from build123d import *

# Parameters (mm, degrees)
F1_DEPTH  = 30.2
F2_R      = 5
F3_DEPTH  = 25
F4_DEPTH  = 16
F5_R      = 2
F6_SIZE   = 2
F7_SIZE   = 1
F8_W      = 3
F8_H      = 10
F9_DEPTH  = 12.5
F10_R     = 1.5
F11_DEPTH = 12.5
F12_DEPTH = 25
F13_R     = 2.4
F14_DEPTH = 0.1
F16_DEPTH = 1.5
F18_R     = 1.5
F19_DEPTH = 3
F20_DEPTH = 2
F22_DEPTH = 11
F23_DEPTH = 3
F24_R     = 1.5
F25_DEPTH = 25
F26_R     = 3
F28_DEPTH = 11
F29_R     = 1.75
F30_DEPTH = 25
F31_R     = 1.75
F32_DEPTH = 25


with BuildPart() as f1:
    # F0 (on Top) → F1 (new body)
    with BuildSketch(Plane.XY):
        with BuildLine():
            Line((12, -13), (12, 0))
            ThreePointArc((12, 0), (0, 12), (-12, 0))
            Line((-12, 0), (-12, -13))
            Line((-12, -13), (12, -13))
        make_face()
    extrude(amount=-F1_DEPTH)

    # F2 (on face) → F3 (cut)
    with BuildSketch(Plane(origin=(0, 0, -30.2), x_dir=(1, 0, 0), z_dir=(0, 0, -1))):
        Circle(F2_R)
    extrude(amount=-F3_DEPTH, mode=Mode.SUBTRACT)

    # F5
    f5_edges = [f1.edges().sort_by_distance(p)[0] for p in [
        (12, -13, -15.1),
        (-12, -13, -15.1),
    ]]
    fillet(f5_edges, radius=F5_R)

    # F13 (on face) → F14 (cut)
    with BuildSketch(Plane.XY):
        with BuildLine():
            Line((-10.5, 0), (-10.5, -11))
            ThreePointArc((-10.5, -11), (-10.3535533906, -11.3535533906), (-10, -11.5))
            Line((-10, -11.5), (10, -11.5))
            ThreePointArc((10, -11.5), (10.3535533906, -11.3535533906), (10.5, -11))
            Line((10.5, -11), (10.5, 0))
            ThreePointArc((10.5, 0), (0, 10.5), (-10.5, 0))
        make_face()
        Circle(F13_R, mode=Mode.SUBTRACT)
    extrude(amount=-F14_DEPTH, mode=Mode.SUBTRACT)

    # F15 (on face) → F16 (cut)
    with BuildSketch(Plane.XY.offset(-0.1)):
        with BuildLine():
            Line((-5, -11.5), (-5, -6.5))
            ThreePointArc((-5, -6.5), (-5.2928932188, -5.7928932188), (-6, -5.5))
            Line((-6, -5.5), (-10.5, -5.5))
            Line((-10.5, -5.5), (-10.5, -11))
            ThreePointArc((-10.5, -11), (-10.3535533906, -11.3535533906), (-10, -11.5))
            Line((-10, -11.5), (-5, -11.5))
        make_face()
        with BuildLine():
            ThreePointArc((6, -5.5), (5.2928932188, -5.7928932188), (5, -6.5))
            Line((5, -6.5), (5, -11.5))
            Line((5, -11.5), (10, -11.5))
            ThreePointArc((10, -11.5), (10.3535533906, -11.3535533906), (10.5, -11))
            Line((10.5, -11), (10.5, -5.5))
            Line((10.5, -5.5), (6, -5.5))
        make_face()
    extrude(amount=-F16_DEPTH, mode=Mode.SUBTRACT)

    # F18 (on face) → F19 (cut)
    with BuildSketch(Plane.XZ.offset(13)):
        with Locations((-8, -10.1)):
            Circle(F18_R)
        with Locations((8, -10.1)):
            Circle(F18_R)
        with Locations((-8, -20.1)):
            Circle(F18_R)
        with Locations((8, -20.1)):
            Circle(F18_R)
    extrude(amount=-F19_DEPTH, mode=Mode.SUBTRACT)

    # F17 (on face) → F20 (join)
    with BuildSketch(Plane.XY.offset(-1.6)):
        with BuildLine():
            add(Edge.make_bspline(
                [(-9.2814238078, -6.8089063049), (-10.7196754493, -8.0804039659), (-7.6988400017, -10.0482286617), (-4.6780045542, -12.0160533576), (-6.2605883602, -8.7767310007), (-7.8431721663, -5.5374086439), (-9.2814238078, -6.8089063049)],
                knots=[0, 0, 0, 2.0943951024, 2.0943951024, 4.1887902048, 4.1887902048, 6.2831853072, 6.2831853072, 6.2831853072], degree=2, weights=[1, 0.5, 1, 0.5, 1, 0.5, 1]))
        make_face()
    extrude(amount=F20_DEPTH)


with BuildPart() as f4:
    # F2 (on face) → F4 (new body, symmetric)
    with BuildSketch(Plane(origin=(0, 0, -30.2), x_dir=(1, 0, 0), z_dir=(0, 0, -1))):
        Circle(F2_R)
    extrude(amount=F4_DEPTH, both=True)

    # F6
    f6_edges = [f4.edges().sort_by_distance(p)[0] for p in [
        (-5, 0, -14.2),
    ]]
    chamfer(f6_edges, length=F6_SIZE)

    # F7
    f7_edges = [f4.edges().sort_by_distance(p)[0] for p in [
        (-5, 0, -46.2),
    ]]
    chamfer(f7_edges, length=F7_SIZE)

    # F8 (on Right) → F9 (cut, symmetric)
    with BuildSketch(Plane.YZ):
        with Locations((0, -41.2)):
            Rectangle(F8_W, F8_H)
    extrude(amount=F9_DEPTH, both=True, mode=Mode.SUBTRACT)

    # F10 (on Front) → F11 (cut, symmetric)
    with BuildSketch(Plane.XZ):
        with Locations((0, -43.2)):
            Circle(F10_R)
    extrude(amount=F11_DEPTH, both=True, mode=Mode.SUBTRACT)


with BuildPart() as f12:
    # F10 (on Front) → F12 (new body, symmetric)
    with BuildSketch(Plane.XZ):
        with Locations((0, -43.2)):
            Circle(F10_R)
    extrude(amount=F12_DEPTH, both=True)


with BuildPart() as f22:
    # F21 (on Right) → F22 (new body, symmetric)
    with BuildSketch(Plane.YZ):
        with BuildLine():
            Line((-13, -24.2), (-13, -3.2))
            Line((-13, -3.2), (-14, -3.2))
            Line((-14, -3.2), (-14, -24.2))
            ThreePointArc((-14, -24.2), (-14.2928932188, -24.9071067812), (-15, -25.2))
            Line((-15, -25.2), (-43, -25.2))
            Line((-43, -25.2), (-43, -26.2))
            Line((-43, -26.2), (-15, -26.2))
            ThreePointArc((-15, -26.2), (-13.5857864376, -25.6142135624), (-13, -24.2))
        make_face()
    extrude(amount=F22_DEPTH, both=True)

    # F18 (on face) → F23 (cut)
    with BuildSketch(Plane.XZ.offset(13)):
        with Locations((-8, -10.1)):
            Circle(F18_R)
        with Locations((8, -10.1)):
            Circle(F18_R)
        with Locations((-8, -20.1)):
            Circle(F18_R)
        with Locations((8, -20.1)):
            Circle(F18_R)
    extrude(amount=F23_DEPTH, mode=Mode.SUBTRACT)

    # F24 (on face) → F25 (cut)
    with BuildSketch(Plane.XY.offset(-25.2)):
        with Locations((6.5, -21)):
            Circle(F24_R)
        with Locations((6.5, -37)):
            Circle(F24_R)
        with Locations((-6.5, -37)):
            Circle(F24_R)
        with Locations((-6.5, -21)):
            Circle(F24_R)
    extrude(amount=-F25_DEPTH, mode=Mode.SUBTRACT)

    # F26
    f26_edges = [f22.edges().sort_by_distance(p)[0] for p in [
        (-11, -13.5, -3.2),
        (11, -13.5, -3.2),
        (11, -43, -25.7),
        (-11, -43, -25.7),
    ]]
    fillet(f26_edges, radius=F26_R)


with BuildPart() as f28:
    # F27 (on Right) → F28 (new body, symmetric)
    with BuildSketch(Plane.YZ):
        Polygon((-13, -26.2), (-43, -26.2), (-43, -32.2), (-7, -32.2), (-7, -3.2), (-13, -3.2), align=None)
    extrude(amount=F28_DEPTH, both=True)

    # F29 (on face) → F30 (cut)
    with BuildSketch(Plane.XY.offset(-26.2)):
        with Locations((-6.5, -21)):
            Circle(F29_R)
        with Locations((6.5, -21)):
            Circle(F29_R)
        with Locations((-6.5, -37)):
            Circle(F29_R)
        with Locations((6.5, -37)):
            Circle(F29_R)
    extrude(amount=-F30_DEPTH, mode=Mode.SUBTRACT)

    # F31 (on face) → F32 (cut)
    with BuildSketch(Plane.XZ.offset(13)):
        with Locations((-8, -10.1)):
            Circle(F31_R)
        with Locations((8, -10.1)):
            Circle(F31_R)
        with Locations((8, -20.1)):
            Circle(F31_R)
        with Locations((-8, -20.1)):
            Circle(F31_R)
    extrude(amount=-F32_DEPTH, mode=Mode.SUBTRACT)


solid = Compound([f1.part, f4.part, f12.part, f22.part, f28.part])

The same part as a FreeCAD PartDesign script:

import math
import FreeCAD as App
import Part
import Sketcher
from FreeCAD import Vector


def edges_at(feature, points):
    """Names of the edges that pass closest to the given points."""
    edges = feature.Shape.Edges
    near = lambda p: min(range(len(edges)), key=lambda i: edges[i].distToShape(Part.Vertex(*p))[0])
    return sorted({f"Edge{near(p) + 1}" for p in points})


def add_polygon(sketch, points):
    """Adds a closed chain of lines whose ends are joined by coincident constraints."""
    first, n = sketch.GeometryCount, len(points)
    for a, b in zip(points, points[1:] + points[:1]):
        sketch.addGeometry(Part.LineSegment(App.Vector(*a, 0), App.Vector(*b, 0)), False)
    for i in range(n):
        sketch.addConstraint(Sketcher.Constraint("Coincident", first + i, 2, first + (i + 1) % n, 1))

doc = App.newDocument("Part")
params = doc.addObject("Spreadsheet::Sheet", "Params")
for row, (alias, value) in enumerate([
    ("sketch1_radius", "12 mm"),
    ("sketch1_height", "13 mm"),
    ("pad1_length", "30.2 mm"),
    ("sketch2_diameter", "10 mm"),
    ("pocket1_length", "25 mm"),
    ("fillet_radius", "2 mm"),
    ("sketch3_diameter", "4.8 mm"),
    ("sketch3_radius", "0.5 mm"),
    ("sketch3_radius2", "10.5 mm"),
    ("sketch3_height", "11 mm"),
    ("pocket2_length", "0.1 mm"),
    ("sketch4_radius", "1 mm"),
    ("sketch4_radius2", "0.5 mm"),
    ("sketch4_width", "5 mm"),
    ("pocket3_length", "1.5 mm"),
    ("sketch5_diameter", "3 mm"),
    ("pocket4_length", "3 mm"),
    ("pad2_length", "2 mm"),
    ("sketch7_diameter", "10 mm"),
    ("pad3_length", "32 mm"),
    ("chamfer_size", "2 mm"),
    ("chamfer2_size", "1 mm"),
    ("sketch8_width", "3 mm"),
    ("sketch8_height", "10 mm"),
    ("pocket5_length", "25 mm"),
    ("sketch9_diameter", "3 mm"),
    ("pocket6_length", "25 mm"),
    ("sketch10_diameter", "3 mm"),
    ("pad4_length", "50 mm"),
    ("sketch11_radius", "1 mm"),
    ("sketch11_radius2", "2 mm"),
    ("sketch11_width", "28 mm"),
    ("sketch11_height", "21 mm"),
    ("pad5_length", "22 mm"),
    ("sketch12_diameter", "3 mm"),
    ("pocket7_length", "3 mm"),
    ("sketch13_diameter", "3 mm"),
    ("pocket8_length", "25 mm"),
    ("fillet2_radius", "3 mm"),
    ("sketch14_width", "30 mm"),
    ("sketch14_width2", "36 mm"),
    ("sketch14_height", "29 mm"),
    ("pad6_length", "22 mm"),
    ("sketch15_diameter", "3.5 mm"),
    ("pocket9_length", "25 mm"),
    ("sketch16_diameter", "3.5 mm"),
    ("pocket10_length", "25 mm"),
], start=1):
    params.set(f"A{row}", alias)
    params.set(f"B{row}", "=" + value)
    params.setAlias(f"B{row}", alias)

body = doc.addObject("PartDesign::Body", "Body")

# Sketch on XY plane
sketch1 = doc.addObject("Sketcher::SketchObject", "Sketch")
body.addObject(sketch1)
sketch1.AttachmentSupport = (doc.XY_Plane, [""])
sketch1.MapMode = "FlatFace"
sketch1.addGeometry(Part.LineSegment(Vector(12, -13, 0), Vector(12, 0, 0)), False)
sketch1.addGeometry(Part.ArcOfCircle(Part.Circle(Vector(0, 0, 0), Vector(0, 0, 1), 12), math.radians(0), math.radians(180)), False)
sketch1.addGeometry(Part.LineSegment(Vector(-12, 0, 0), Vector(-12, -13, 0)), False)
sketch1.addGeometry(Part.LineSegment(Vector(-12, -13, 0), Vector(12, -13, 0)), False)
sketch1.addConstraint(Sketcher.Constraint("Tangent", 0, 2, 1, 1))
sketch1.addConstraint(Sketcher.Constraint("Tangent", 1, 2, 2, 1))
sketch1.addConstraint(Sketcher.Constraint("Coincident", 2, 2, 3, 1))
sketch1.addConstraint(Sketcher.Constraint("Coincident", 3, 2, 0, 1))
sketch1.addConstraint(Sketcher.Constraint("Vertical", 0))
sketch1.addConstraint(Sketcher.Constraint("Vertical", 2))
sketch1.addConstraint(Sketcher.Constraint("Horizontal", 3))
sketch1.addConstraint(Sketcher.Constraint("Coincident", 1, 3, -1, 1))
sketch1.addConstraint(Sketcher.Constraint("Radius", 1, 12.0))
sketch1.addConstraint(Sketcher.Constraint("DistanceY", 0, 1, 0, 2, 13.0))
sketch1.setExpression("Constraints[8]", "Params.sketch1_radius")
sketch1.setExpression("Constraints[9]", "Params.sketch1_height")
pad1 = doc.addObject("PartDesign::Pad", "Pad")
body.addObject(pad1)
pad1.Profile = sketch1
pad1.setExpression("Length", "Params.pad1_length")
pad1.Reversed = True

# Sketch on XY plane
sketch2 = doc.addObject("Sketcher::SketchObject", "Sketch001")
body.addObject(sketch2)
sketch2.AttachmentSupport = (doc.XY_Plane, [""])
sketch2.MapMode = "FlatFace"
sketch2.AttachmentOffset = App.Placement(Vector(0, 0, -30.2), App.Rotation())
sketch2.addGeometry(Part.Circle(Vector(0, 0, 0), Vector(0, 0, 1), 5), False)
sketch2.addConstraint(Sketcher.Constraint("Coincident", 0, 3, -1, 1))
sketch2.addConstraint(Sketcher.Constraint("Diameter", 0, 10.0))
sketch2.setExpression("Constraints[1]", "Params.sketch2_diameter")
pocket1 = doc.addObject("PartDesign::Pocket", "Pocket")
body.addObject(pocket1)
pocket1.Profile = sketch2
pocket1.setExpression("Length", "Params.pocket1_length")
pocket1.Reversed = True
doc.recompute()

fillet = doc.addObject("PartDesign::Fillet", "Fillet")
body.addObject(fillet)
fillet.Base = (pocket1, edges_at(pocket1, [(12, -13, -15.1), (-12, -13, -15.1)]))
fillet.setExpression("Radius", "Params.fillet_radius")

# Sketch on XY plane
sketch3 = doc.addObject("Sketcher::SketchObject", "Sketch002")
body.addObject(sketch3)
sketch3.AttachmentSupport = (doc.XY_Plane, [""])
sketch3.MapMode = "FlatFace"
sketch3.addGeometry(Part.LineSegment(Vector(-10.5, 0, 0), Vector(-10.5, -11, 0)), False)
sketch3.addGeometry(Part.ArcOfCircle(Part.Circle(Vector(-10, -11, 0), Vector(0, 0, 1), 0.5), math.radians(180), math.radians(270)), False)
sketch3.addGeometry(Part.LineSegment(Vector(-10, -11.5, 0), Vector(10, -11.5, 0)), False)
sketch3.addGeometry(Part.ArcOfCircle(Part.Circle(Vector(10, -11, 0), Vector(0, 0, 1), 0.5), math.radians(-90), math.radians(0)), False)
sketch3.addGeometry(Part.LineSegment(Vector(10.5, -11, 0), Vector(10.5, 0, 0)), False)
sketch3.addGeometry(Part.ArcOfCircle(Part.Circle(Vector(0, 0, 0), Vector(0, 0, 1), 10.5), math.radians(0), math.radians(180)), False)
sketch3.addGeometry(Part.Circle(Vector(0, 0, 0), Vector(0, 0, 1), 2.4), False)
sketch3.addConstraint(Sketcher.Constraint("Tangent", 0, 2, 1, 1))
sketch3.addConstraint(Sketcher.Constraint("Tangent", 1, 2, 2, 1))
sketch3.addConstraint(Sketcher.Constraint("Tangent", 2, 2, 3, 1))
sketch3.addConstraint(Sketcher.Constraint("Tangent", 3, 2, 4, 1))
sketch3.addConstraint(Sketcher.Constraint("Tangent", 4, 2, 5, 1))
sketch3.addConstraint(Sketcher.Constraint("Tangent", 5, 2, 0, 1))
sketch3.addConstraint(Sketcher.Constraint("Vertical", 0))
sketch3.addConstraint(Sketcher.Constraint("Horizontal", 2))
sketch3.addConstraint(Sketcher.Constraint("Vertical", 4))
sketch3.addConstraint(Sketcher.Constraint("Coincident", 5, 3, -1, 1))
sketch3.addConstraint(Sketcher.Constraint("Coincident", 6, 3, -1, 1))
sketch3.addConstraint(Sketcher.Constraint("Equal", 1, 3))
sketch3.addConstraint(Sketcher.Constraint("Diameter", 6, 4.8))
sketch3.addConstraint(Sketcher.Constraint("Radius", 1, 0.5))
sketch3.addConstraint(Sketcher.Constraint("Radius", 5, 10.5))
sketch3.addConstraint(Sketcher.Constraint("DistanceY", 0, 2, 0, 1, 11.0))
sketch3.setExpression("Constraints[12]", "Params.sketch3_diameter")
sketch3.setExpression("Constraints[13]", "Params.sketch3_radius")
sketch3.setExpression("Constraints[14]", "Params.sketch3_radius2")
sketch3.setExpression("Constraints[15]", "Params.sketch3_height")
pocket2 = doc.addObject("PartDesign::Pocket", "Pocket001")
body.addObject(pocket2)
pocket2.Profile = sketch3
pocket2.setExpression("Length", "Params.pocket2_length")

# Sketch on XY plane
sketch4 = doc.addObject("Sketcher::SketchObject", "Sketch003")
body.addObject(sketch4)
sketch4.AttachmentSupport = (doc.XY_Plane, [""])
sketch4.MapMode = "FlatFace"
sketch4.AttachmentOffset = App.Placement(Vector(0, 0, -0.1), App.Rotation())
sketch4.addGeometry(Part.LineSegment(Vector(-5, -11.5, 0), Vector(-5, -6.5, 0)), False)
sketch4.addGeometry(Part.ArcOfCircle(Part.Circle(Vector(-6, -6.5, 0), Vector(0, 0, 1), 1), math.radians(0), math.radians(90)), False)
sketch4.addGeometry(Part.LineSegment(Vector(-6, -5.5, 0), Vector(-10.5, -5.5, 0)), False)
sketch4.addGeometry(Part.LineSegment(Vector(-10.5, -5.5, 0), Vector(-10.5, -11, 0)), False)
sketch4.addGeometry(Part.ArcOfCircle(Part.Circle(Vector(-10, -11, 0), Vector(0, 0, 1), 0.5), math.radians(180), math.radians(270)), False)
sketch4.addGeometry(Part.LineSegment(Vector(-10, -11.5, 0), Vector(-5, -11.5, 0)), False)
sketch4.addGeometry(Part.ArcOfCircle(Part.Circle(Vector(6, -6.5, 0), Vector(0, 0, 1), 1), math.radians(90), math.radians(180)), False)
sketch4.addGeometry(Part.LineSegment(Vector(5, -6.5, 0), Vector(5, -11.5, 0)), False)
sketch4.addGeometry(Part.LineSegment(Vector(5, -11.5, 0), Vector(10, -11.5, 0)), False)
sketch4.addGeometry(Part.ArcOfCircle(Part.Circle(Vector(10, -11, 0), Vector(0, 0, 1), 0.5), math.radians(-90), math.radians(0)), False)
sketch4.addGeometry(Part.LineSegment(Vector(10.5, -11, 0), Vector(10.5, -5.5, 0)), False)
sketch4.addGeometry(Part.LineSegment(Vector(10.5, -5.5, 0), Vector(6, -5.5, 0)), False)
sketch4.addConstraint(Sketcher.Constraint("Tangent", 0, 2, 1, 1))
sketch4.addConstraint(Sketcher.Constraint("Tangent", 1, 2, 2, 1))
sketch4.addConstraint(Sketcher.Constraint("Coincident", 2, 2, 3, 1))
sketch4.addConstraint(Sketcher.Constraint("Tangent", 3, 2, 4, 1))
sketch4.addConstraint(Sketcher.Constraint("Tangent", 4, 2, 5, 1))
sketch4.addConstraint(Sketcher.Constraint("Coincident", 5, 2, 0, 1))
sketch4.addConstraint(Sketcher.Constraint("Tangent", 6, 2, 7, 1))
sketch4.addConstraint(Sketcher.Constraint("Coincident", 7, 2, 8, 1))
sketch4.addConstraint(Sketcher.Constraint("Tangent", 8, 2, 9, 1))
sketch4.addConstraint(Sketcher.Constraint("Tangent", 9, 2, 10, 1))
sketch4.addConstraint(Sketcher.Constraint("Coincident", 10, 2, 11, 1))
sketch4.addConstraint(Sketcher.Constraint("Tangent", 11, 2, 6, 1))
sketch4.addConstraint(Sketcher.Constraint("Vertical", 0))
sketch4.addConstraint(Sketcher.Constraint("Horizontal", 2))
sketch4.addConstraint(Sketcher.Constraint("Vertical", 3))
sketch4.addConstraint(Sketcher.Constraint("Horizontal", 5))
sketch4.addConstraint(Sketcher.Constraint("Vertical", 7))
sketch4.addConstraint(Sketcher.Constraint("Horizontal", 8))
sketch4.addConstraint(Sketcher.Constraint("Vertical", 10))
sketch4.addConstraint(Sketcher.Constraint("Horizontal", 11))
sketch4.addConstraint(Sketcher.Constraint("Equal", 1, 6))
sketch4.addConstraint(Sketcher.Constraint("Equal", 4, 9))
sketch4.addConstraint(Sketcher.Constraint("Symmetric", 1, 3, 6, 3, -2))
sketch4.addConstraint(Sketcher.Constraint("Symmetric", 4, 3, 9, 3, -2))
sketch4.addConstraint(Sketcher.Constraint("Equal", 8, 0))
sketch4.addConstraint(Sketcher.Constraint("Radius", 1, 1.0))
sketch4.addConstraint(Sketcher.Constraint("Radius", 4, 0.5))
sketch4.addConstraint(Sketcher.Constraint("DistanceX", 5, 1, 5, 2, 5.0))
sketch4.addConstraint(Sketcher.Constraint("DistanceX", 1, 3, -1, 1, 6.0))
sketch4.addConstraint(Sketcher.Constraint("DistanceY", 4, 3, -1, 1, 11.0))
sketch4.setExpression("Constraints[25]", "Params.sketch4_radius")
sketch4.setExpression("Constraints[26]", "Params.sketch4_radius2")
sketch4.setExpression("Constraints[27]", "Params.sketch4_width")
pocket3 = doc.addObject("PartDesign::Pocket", "Pocket002")
body.addObject(pocket3)
pocket3.Profile = sketch4
pocket3.setExpression("Length", "Params.pocket3_length")

# Sketch on XZ plane
sketch5 = doc.addObject("Sketcher::SketchObject", "Sketch004")
body.addObject(sketch5)
sketch5.AttachmentSupport = (doc.XZ_Plane, [""])
sketch5.MapMode = "FlatFace"
sketch5.AttachmentOffset = App.Placement(Vector(0, 0, 13), App.Rotation())
sketch5.addGeometry(Part.Circle(Vector(-8, -10.1, 0), Vector(0, 0, 1), 1.5), False)
sketch5.addGeometry(Part.Circle(Vector(8, -10.1, 0), Vector(0, 0, 1), 1.5), False)
sketch5.addGeometry(Part.Circle(Vector(-8, -20.1, 0), Vector(0, 0, 1), 1.5), False)
sketch5.addGeometry(Part.Circle(Vector(8, -20.1, 0), Vector(0, 0, 1), 1.5), False)
sketch5.addConstraint(Sketcher.Constraint("Equal", 0, 1))
sketch5.addConstraint(Sketcher.Constraint("Equal", 1, 2))
sketch5.addConstraint(Sketcher.Constraint("Equal", 2, 3))
sketch5.addConstraint(Sketcher.Constraint("Symmetric", 0, 3, 1, 3, -2))
sketch5.addConstraint(Sketcher.Constraint("Symmetric", 2, 3, 3, 3, -2))
sketch5.addConstraint(Sketcher.Constraint("Vertical", 0, 3, 2, 3))
sketch5.addConstraint(Sketcher.Constraint("Diameter", 0, 3.0))
sketch5.addConstraint(Sketcher.Constraint("DistanceX", 0, 3, -1, 1, 8.0))
sketch5.addConstraint(Sketcher.Constraint("DistanceY", 2, 3, 0, 3, 10.0))
sketch5.addConstraint(Sketcher.Constraint("DistanceY", 0, 3, -1, 1, 10.1))
sketch5.setExpression("Constraints[6]", "Params.sketch5_diameter")
pocket4 = doc.addObject("PartDesign::Pocket", "Pocket003")
body.addObject(pocket4)
pocket4.Profile = sketch5
pocket4.setExpression("Length", "Params.pocket4_length")

# Sketch on XY plane
sketch6 = doc.addObject("Sketcher::SketchObject", "Sketch005")
body.addObject(sketch6)
sketch6.AttachmentSupport = (doc.XY_Plane, [""])
sketch6.MapMode = "FlatFace"
sketch6.AttachmentOffset = App.Placement(Vector(0, 0, -1.6), App.Rotation())
sketch6.addGeometry(Part.BSplineCurve([Vector(-9.281424, -6.808906, 0), Vector(-10.719675, -8.080404, 0), Vector(-7.69884, -10.048229, 0), Vector(-4.678005, -12.016053, 0), Vector(-6.260588, -8.776731, 0), Vector(-7.843172, -5.537409, 0), Vector(-9.281424, -6.808906, 0)], [3, 2, 2, 3], [0, 2.094395102, 4.188790205, 6.283185307], False, 2, [1, 0.5, 1, 0.5, 1, 0.5, 1], False), False)
sketch6.addConstraint(Sketcher.Constraint("Block", 0))
pad2 = doc.addObject("PartDesign::Pad", "Pad001")
body.addObject(pad2)
pad2.Profile = sketch6
pad2.setExpression("Length", "Params.pad2_length")
body2 = doc.addObject("PartDesign::Body", "Body001")

# Sketch on XY plane
sketch7 = doc.addObject("Sketcher::SketchObject", "Sketch006")
body2.addObject(sketch7)
sketch7.AttachmentSupport = (doc.getObject("XY_Plane001"), [""])
sketch7.MapMode = "FlatFace"
sketch7.AttachmentOffset = App.Placement(Vector(0, 0, -30.2), App.Rotation())
sketch7.addGeometry(Part.Circle(Vector(0, 0, 0), Vector(0, 0, 1), 5), False)
sketch7.addConstraint(Sketcher.Constraint("Coincident", 0, 3, -1, 1))
sketch7.addConstraint(Sketcher.Constraint("Diameter", 0, 10.0))
sketch7.setExpression("Constraints[1]", "Params.sketch7_diameter")
pad3 = doc.addObject("PartDesign::Pad", "Pad002")
body2.addObject(pad3)
pad3.Profile = sketch7
pad3.setExpression("Length", "Params.pad3_length")
pad3.Midplane = True
doc.recompute()

chamfer = doc.addObject("PartDesign::Chamfer", "Chamfer")
body2.addObject(chamfer)
chamfer.Base = (pad3, edges_at(pad3, [(-5, 0, -14.2)]))
chamfer.setExpression("Size", "Params.chamfer_size")
doc.recompute()

chamfer2 = doc.addObject("PartDesign::Chamfer", "Chamfer001")
body2.addObject(chamfer2)
chamfer2.Base = (chamfer, edges_at(chamfer, [(-5, 0, -46.2)]))
chamfer2.setExpression("Size", "Params.chamfer2_size")

# Sketch on YZ plane
sketch8 = doc.addObject("Sketcher::SketchObject", "Sketch007")
body2.addObject(sketch8)
sketch8.AttachmentSupport = (doc.getObject("YZ_Plane001"), [""])
sketch8.MapMode = "FlatFace"
add_polygon(sketch8, [(-1.5, -36.2), (-1.5, -46.2), (1.5, -46.2), (1.5, -36.2)])  # lines 0-3
sketch8.addConstraint(Sketcher.Constraint("Vertical", 0))
sketch8.addConstraint(Sketcher.Constraint("Horizontal", 1))
sketch8.addConstraint(Sketcher.Constraint("Vertical", 2))
sketch8.addConstraint(Sketcher.Constraint("Horizontal", 3))
sketch8.addConstraint(Sketcher.Constraint("DistanceX", 1, 1, 1, 2, 3.0))
sketch8.addConstraint(Sketcher.Constraint("DistanceY", 0, 2, 0, 1, 10.0))
sketch8.addConstraint(Sketcher.Constraint("DistanceX", 0, 2, -1, 1, 1.5))
sketch8.addConstraint(Sketcher.Constraint("DistanceY", 0, 2, -1, 1, 46.2))
sketch8.setExpression("Constraints[8]", "Params.sketch8_width")
sketch8.setExpression("Constraints[9]", "Params.sketch8_height")
pocket5 = doc.addObject("PartDesign::Pocket", "Pocket004")
body2.addObject(pocket5)
pocket5.Profile = sketch8
pocket5.setExpression("Length", "Params.pocket5_length")
pocket5.Midplane = True

# Sketch on XZ plane
sketch9 = doc.addObject("Sketcher::SketchObject", "Sketch008")
body2.addObject(sketch9)
sketch9.AttachmentSupport = (doc.getObject("XZ_Plane001"), [""])
sketch9.MapMode = "FlatFace"
sketch9.addGeometry(Part.Circle(Vector(0, -43.2, 0), Vector(0, 0, 1), 1.5), False)
sketch9.addConstraint(Sketcher.Constraint("PointOnObject", 0, 3, -2))
sketch9.addConstraint(Sketcher.Constraint("Diameter", 0, 3.0))
sketch9.addConstraint(Sketcher.Constraint("DistanceY", 0, 3, -1, 1, 43.2))
sketch9.setExpression("Constraints[1]", "Params.sketch9_diameter")
pocket6 = doc.addObject("PartDesign::Pocket", "Pocket005")
body2.addObject(pocket6)
pocket6.Profile = sketch9
pocket6.setExpression("Length", "Params.pocket6_length")
pocket6.Midplane = True
body3 = doc.addObject("PartDesign::Body", "Body002")

# Sketch on XZ plane
sketch10 = doc.addObject("Sketcher::SketchObject", "Sketch009")
body3.addObject(sketch10)
sketch10.AttachmentSupport = (doc.getObject("XZ_Plane002"), [""])
sketch10.MapMode = "FlatFace"
sketch10.addGeometry(Part.Circle(Vector(0, -43.2, 0), Vector(0, 0, 1), 1.5), False)
sketch10.addConstraint(Sketcher.Constraint("PointOnObject", 0, 3, -2))
sketch10.addConstraint(Sketcher.Constraint("Diameter", 0, 3.0))
sketch10.addConstraint(Sketcher.Constraint("DistanceY", 0, 3, -1, 1, 43.2))
sketch10.setExpression("Constraints[1]", "Params.sketch10_diameter")
pad4 = doc.addObject("PartDesign::Pad", "Pad003")
body3.addObject(pad4)
pad4.Profile = sketch10
pad4.setExpression("Length", "Params.pad4_length")
pad4.Midplane = True
body4 = doc.addObject("PartDesign::Body", "Body003")

# Sketch on YZ plane
sketch11 = doc.addObject("Sketcher::SketchObject", "Sketch010")
body4.addObject(sketch11)
sketch11.AttachmentSupport = (doc.getObject("YZ_Plane003"), [""])
sketch11.MapMode = "FlatFace"
sketch11.addGeometry(Part.LineSegment(Vector(-13, -24.2, 0), Vector(-13, -3.2, 0)), False)
sketch11.addGeometry(Part.LineSegment(Vector(-13, -3.2, 0), Vector(-14, -3.2, 0)), False)
sketch11.addGeometry(Part.LineSegment(Vector(-14, -3.2, 0), Vector(-14, -24.2, 0)), False)
sketch11.addGeometry(Part.ArcOfCircle(Part.Circle(Vector(-15, -24.2, 0), Vector(0, 0, 1), 1), math.radians(-90), math.radians(0)), False)
sketch11.addGeometry(Part.LineSegment(Vector(-15, -25.2, 0), Vector(-43, -25.2, 0)), False)
sketch11.addGeometry(Part.LineSegment(Vector(-43, -25.2, 0), Vector(-43, -26.2, 0)), False)
sketch11.addGeometry(Part.LineSegment(Vector(-43, -26.2, 0), Vector(-15, -26.2, 0)), False)
sketch11.addGeometry(Part.ArcOfCircle(Part.Circle(Vector(-15, -24.2, 0), Vector(0, 0, 1), 2), math.radians(-90), math.radians(0)), False)
sketch11.addConstraint(Sketcher.Constraint("Coincident", 0, 2, 1, 1))
sketch11.addConstraint(Sketcher.Constraint("Coincident", 1, 2, 2, 1))
sketch11.addConstraint(Sketcher.Constraint("Tangent", 2, 2, 3, 2))
sketch11.addConstraint(Sketcher.Constraint("Tangent", 3, 1, 4, 1))
sketch11.addConstraint(Sketcher.Constraint("Coincident", 4, 2, 5, 1))
sketch11.addConstraint(Sketcher.Constraint("Coincident", 5, 2, 6, 1))
sketch11.addConstraint(Sketcher.Constraint("Tangent", 6, 2, 7, 1))
sketch11.addConstraint(Sketcher.Constraint("Tangent", 7, 2, 0, 1))
sketch11.addConstraint(Sketcher.Constraint("Vertical", 0))
sketch11.addConstraint(Sketcher.Constraint("Horizontal", 1))
sketch11.addConstraint(Sketcher.Constraint("Vertical", 2))
sketch11.addConstraint(Sketcher.Constraint("Horizontal", 4))
sketch11.addConstraint(Sketcher.Constraint("Vertical", 5))
sketch11.addConstraint(Sketcher.Constraint("Horizontal", 6))
sketch11.addConstraint(Sketcher.Constraint("Coincident", 7, 3, 3, 3))
sketch11.addConstraint(Sketcher.Constraint("Radius", 3, 1.0))
sketch11.addConstraint(Sketcher.Constraint("Radius", 7, 2.0))
sketch11.addConstraint(Sketcher.Constraint("DistanceX", 4, 2, 4, 1, 28.0))
sketch11.addConstraint(Sketcher.Constraint("DistanceY", 0, 1, 0, 2, 21.0))
sketch11.addConstraint(Sketcher.Constraint("DistanceX", 3, 3, -1, 1, 15.0))
sketch11.addConstraint(Sketcher.Constraint("DistanceY", 3, 3, -1, 1, 24.2))
sketch11.setExpression("Constraints[15]", "Params.sketch11_radius")
sketch11.setExpression("Constraints[16]", "Params.sketch11_radius2")
sketch11.setExpression("Constraints[17]", "Params.sketch11_width")
sketch11.setExpression("Constraints[18]", "Params.sketch11_height")
pad5 = doc.addObject("PartDesign::Pad", "Pad004")
body4.addObject(pad5)
pad5.Profile = sketch11
pad5.setExpression("Length", "Params.pad5_length")
pad5.Midplane = True

# Sketch on XZ plane
sketch12 = doc.addObject("Sketcher::SketchObject", "Sketch011")
body4.addObject(sketch12)
sketch12.AttachmentSupport = (doc.getObject("XZ_Plane003"), [""])
sketch12.MapMode = "FlatFace"
sketch12.AttachmentOffset = App.Placement(Vector(0, 0, 13), App.Rotation())
sketch12.addGeometry(Part.Circle(Vector(-8, -10.1, 0), Vector(0, 0, 1), 1.5), False)
sketch12.addGeometry(Part.Circle(Vector(8, -10.1, 0), Vector(0, 0, 1), 1.5), False)
sketch12.addGeometry(Part.Circle(Vector(-8, -20.1, 0), Vector(0, 0, 1), 1.5), False)
sketch12.addGeometry(Part.Circle(Vector(8, -20.1, 0), Vector(0, 0, 1), 1.5), False)
sketch12.addConstraint(Sketcher.Constraint("Equal", 0, 1))
sketch12.addConstraint(Sketcher.Constraint("Equal", 1, 2))
sketch12.addConstraint(Sketcher.Constraint("Equal", 2, 3))
sketch12.addConstraint(Sketcher.Constraint("Symmetric", 0, 3, 1, 3, -2))
sketch12.addConstraint(Sketcher.Constraint("Symmetric", 2, 3, 3, 3, -2))
sketch12.addConstraint(Sketcher.Constraint("Vertical", 0, 3, 2, 3))
sketch12.addConstraint(Sketcher.Constraint("Diameter", 0, 3.0))
sketch12.addConstraint(Sketcher.Constraint("DistanceX", 0, 3, -1, 1, 8.0))
sketch12.addConstraint(Sketcher.Constraint("DistanceY", 2, 3, 0, 3, 10.0))
sketch12.addConstraint(Sketcher.Constraint("DistanceY", 0, 3, -1, 1, 10.1))
sketch12.setExpression("Constraints[6]", "Params.sketch12_diameter")
pocket7 = doc.addObject("PartDesign::Pocket", "Pocket006")
body4.addObject(pocket7)
pocket7.Profile = sketch12
pocket7.setExpression("Length", "Params.pocket7_length")
pocket7.Reversed = True

# Sketch on XY plane
sketch13 = doc.addObject("Sketcher::SketchObject", "Sketch012")
body4.addObject(sketch13)
sketch13.AttachmentSupport = (doc.getObject("XY_Plane003"), [""])
sketch13.MapMode = "FlatFace"
sketch13.AttachmentOffset = App.Placement(Vector(0, 0, -25.2), App.Rotation())
sketch13.addGeometry(Part.Circle(Vector(6.5, -21, 0), Vector(0, 0, 1), 1.5), False)
sketch13.addGeometry(Part.Circle(Vector(6.5, -37, 0), Vector(0, 0, 1), 1.5), False)
sketch13.addGeometry(Part.Circle(Vector(-6.5, -37, 0), Vector(0, 0, 1), 1.5), False)
sketch13.addGeometry(Part.Circle(Vector(-6.5, -21, 0), Vector(0, 0, 1), 1.5), False)
sketch13.addConstraint(Sketcher.Constraint("Equal", 0, 1))
sketch13.addConstraint(Sketcher.Constraint("Equal", 1, 2))
sketch13.addConstraint(Sketcher.Constraint("Equal", 2, 3))
sketch13.addConstraint(Sketcher.Constraint("Symmetric", 1, 3, 2, 3, -2))
sketch13.addConstraint(Sketcher.Constraint("Symmetric", 0, 3, 3, 3, -2))
sketch13.addConstraint(Sketcher.Constraint("Vertical", 0, 3, 1, 3))
sketch13.addConstraint(Sketcher.Constraint("Diameter", 0, 3.0))
sketch13.addConstraint(Sketcher.Constraint("DistanceY", 0, 3, -1, 1, 21.0))
sketch13.addConstraint(Sketcher.Constraint("DistanceY", 1, 3, -1, 1, 37.0))
sketch13.addConstraint(Sketcher.Constraint("DistanceX", 2, 3, 1, 3, 13.0))
sketch13.setExpression("Constraints[6]", "Params.sketch13_diameter")
pocket8 = doc.addObject("PartDesign::Pocket", "Pocket007")
body4.addObject(pocket8)
pocket8.Profile = sketch13
pocket8.setExpression("Length", "Params.pocket8_length")
doc.recompute()

fillet2 = doc.addObject("PartDesign::Fillet", "Fillet001")
body4.addObject(fillet2)
fillet2.Base = (pocket8, edges_at(pocket8, [
    (-11, -13.5, -3.2),
    (11, -13.5, -3.2),
    (11, -43, -25.7),
    (-11, -43, -25.7),
]))
fillet2.setExpression("Radius", "Params.fillet2_radius")
body5 = doc.addObject("PartDesign::Body", "Body004")

# Sketch on YZ plane
sketch14 = doc.addObject("Sketcher::SketchObject", "Sketch013")
body5.addObject(sketch14)
sketch14.AttachmentSupport = (doc.getObject("YZ_Plane004"), [""])
sketch14.MapMode = "FlatFace"
add_polygon(sketch14, [(-13, -26), (-43, -26), (-43, -32), (-7, -32), (-7, -3), (-13, -3)])  # lines 0-5
sketch14.addConstraint(Sketcher.Constraint("Horizontal", 0))
sketch14.addConstraint(Sketcher.Constraint("Vertical", 1))
sketch14.addConstraint(Sketcher.Constraint("Horizontal", 2))
sketch14.addConstraint(Sketcher.Constraint("Vertical", 3))
sketch14.addConstraint(Sketcher.Constraint("Horizontal", 4))
sketch14.addConstraint(Sketcher.Constraint("Vertical", 5))
sketch14.addConstraint(Sketcher.Constraint("Equal", 4, 1))
sketch14.addConstraint(Sketcher.Constraint("DistanceX", 0, 2, 0, 1, 30.0))
sketch14.addConstraint(Sketcher.Constraint("DistanceX", 2, 1, 2, 2, 36.0))
sketch14.addConstraint(Sketcher.Constraint("DistanceY", 3, 1, 3, 2, 29.0))
sketch14.addConstraint(Sketcher.Constraint("DistanceX", 0, 2, -1, 1, 43.0))
sketch14.addConstraint(Sketcher.Constraint("DistanceY", 0, 2, -1, 1, 26.2))
sketch14.setExpression("Constraints[13]", "Params.sketch14_width")
sketch14.setExpression("Constraints[14]", "Params.sketch14_width2")
sketch14.setExpression("Constraints[15]", "Params.sketch14_height")
pad6 = doc.addObject("PartDesign::Pad", "Pad005")
body5.addObject(pad6)
pad6.Profile = sketch14
pad6.setExpression("Length", "Params.pad6_length")
pad6.Midplane = True

# Sketch on XY plane
sketch15 = doc.addObject("Sketcher::SketchObject", "Sketch014")
body5.addObject(sketch15)
sketch15.AttachmentSupport = (doc.getObject("XY_Plane004"), [""])
sketch15.MapMode = "FlatFace"
sketch15.AttachmentOffset = App.Placement(Vector(0, 0, -26.2), App.Rotation())
sketch15.addGeometry(Part.Circle(Vector(-6.5, -21, 0), Vector(0, 0, 1), 1.8), False)
sketch15.addGeometry(Part.Circle(Vector(6.5, -21, 0), Vector(0, 0, 1), 1.8), False)
sketch15.addGeometry(Part.Circle(Vector(-6.5, -37, 0), Vector(0, 0, 1), 1.8), False)
sketch15.addGeometry(Part.Circle(Vector(6.5, -37, 0), Vector(0, 0, 1), 1.8), False)
sketch15.addConstraint(Sketcher.Constraint("Equal", 0, 1))
sketch15.addConstraint(Sketcher.Constraint("Equal", 1, 2))
sketch15.addConstraint(Sketcher.Constraint("Equal", 2, 3))
sketch15.addConstraint(Sketcher.Constraint("Symmetric", 0, 3, 1, 3, -2))
sketch15.addConstraint(Sketcher.Constraint("Symmetric", 2, 3, 3, 3, -2))
sketch15.addConstraint(Sketcher.Constraint("Vertical", 0, 3, 2, 3))
sketch15.addConstraint(Sketcher.Constraint("Diameter", 0, 3.5))
sketch15.addConstraint(Sketcher.Constraint("DistanceY", 0, 3, -1, 1, 21.0))
sketch15.addConstraint(Sketcher.Constraint("DistanceY", 2, 3, -1, 1, 37.0))
sketch15.addConstraint(Sketcher.Constraint("DistanceX", 0, 3, 1, 3, 13.0))
sketch15.setExpression("Constraints[6]", "Params.sketch15_diameter")
pocket9 = doc.addObject("PartDesign::Pocket", "Pocket008")
body5.addObject(pocket9)
pocket9.Profile = sketch15
pocket9.setExpression("Length", "Params.pocket9_length")

# Sketch on XZ plane
sketch16 = doc.addObject("Sketcher::SketchObject", "Sketch015")
body5.addObject(sketch16)
sketch16.AttachmentSupport = (doc.getObject("XZ_Plane004"), [""])
sketch16.MapMode = "FlatFace"
sketch16.AttachmentOffset = App.Placement(Vector(0, 0, 13), App.Rotation())
sketch16.addGeometry(Part.Circle(Vector(-8, -10.1, 0), Vector(0, 0, 1), 1.8), False)
sketch16.addGeometry(Part.Circle(Vector(8, -10.1, 0), Vector(0, 0, 1), 1.8), False)
sketch16.addGeometry(Part.Circle(Vector(8, -20.1, 0), Vector(0, 0, 1), 1.8), False)
sketch16.addGeometry(Part.Circle(Vector(-8, -20.1, 0), Vector(0, 0, 1), 1.8), False)
sketch16.addConstraint(Sketcher.Constraint("Equal", 0, 1))
sketch16.addConstraint(Sketcher.Constraint("Equal", 1, 2))
sketch16.addConstraint(Sketcher.Constraint("Equal", 2, 3))
sketch16.addConstraint(Sketcher.Constraint("Symmetric", 0, 3, 1, 3, -2))
sketch16.addConstraint(Sketcher.Constraint("Symmetric", 2, 3, 3, 3, -2))
sketch16.addConstraint(Sketcher.Constraint("Vertical", 1, 3, 2, 3))
sketch16.addConstraint(Sketcher.Constraint("Diameter", 0, 3.5))
sketch16.addConstraint(Sketcher.Constraint("DistanceX", 0, 3, -1, 1, 8.0))
sketch16.addConstraint(Sketcher.Constraint("DistanceY", 2, 3, 1, 3, 10.0))
sketch16.addConstraint(Sketcher.Constraint("DistanceY", 0, 3, -1, 1, 10.1))
sketch16.setExpression("Constraints[6]", "Params.sketch16_diameter")
pocket10 = doc.addObject("PartDesign::Pocket", "Pocket009")
body5.addObject(pocket10)
pocket10.Profile = sketch16
pocket10.setExpression("Length", "Params.pocket10_length")

doc.recompute()
